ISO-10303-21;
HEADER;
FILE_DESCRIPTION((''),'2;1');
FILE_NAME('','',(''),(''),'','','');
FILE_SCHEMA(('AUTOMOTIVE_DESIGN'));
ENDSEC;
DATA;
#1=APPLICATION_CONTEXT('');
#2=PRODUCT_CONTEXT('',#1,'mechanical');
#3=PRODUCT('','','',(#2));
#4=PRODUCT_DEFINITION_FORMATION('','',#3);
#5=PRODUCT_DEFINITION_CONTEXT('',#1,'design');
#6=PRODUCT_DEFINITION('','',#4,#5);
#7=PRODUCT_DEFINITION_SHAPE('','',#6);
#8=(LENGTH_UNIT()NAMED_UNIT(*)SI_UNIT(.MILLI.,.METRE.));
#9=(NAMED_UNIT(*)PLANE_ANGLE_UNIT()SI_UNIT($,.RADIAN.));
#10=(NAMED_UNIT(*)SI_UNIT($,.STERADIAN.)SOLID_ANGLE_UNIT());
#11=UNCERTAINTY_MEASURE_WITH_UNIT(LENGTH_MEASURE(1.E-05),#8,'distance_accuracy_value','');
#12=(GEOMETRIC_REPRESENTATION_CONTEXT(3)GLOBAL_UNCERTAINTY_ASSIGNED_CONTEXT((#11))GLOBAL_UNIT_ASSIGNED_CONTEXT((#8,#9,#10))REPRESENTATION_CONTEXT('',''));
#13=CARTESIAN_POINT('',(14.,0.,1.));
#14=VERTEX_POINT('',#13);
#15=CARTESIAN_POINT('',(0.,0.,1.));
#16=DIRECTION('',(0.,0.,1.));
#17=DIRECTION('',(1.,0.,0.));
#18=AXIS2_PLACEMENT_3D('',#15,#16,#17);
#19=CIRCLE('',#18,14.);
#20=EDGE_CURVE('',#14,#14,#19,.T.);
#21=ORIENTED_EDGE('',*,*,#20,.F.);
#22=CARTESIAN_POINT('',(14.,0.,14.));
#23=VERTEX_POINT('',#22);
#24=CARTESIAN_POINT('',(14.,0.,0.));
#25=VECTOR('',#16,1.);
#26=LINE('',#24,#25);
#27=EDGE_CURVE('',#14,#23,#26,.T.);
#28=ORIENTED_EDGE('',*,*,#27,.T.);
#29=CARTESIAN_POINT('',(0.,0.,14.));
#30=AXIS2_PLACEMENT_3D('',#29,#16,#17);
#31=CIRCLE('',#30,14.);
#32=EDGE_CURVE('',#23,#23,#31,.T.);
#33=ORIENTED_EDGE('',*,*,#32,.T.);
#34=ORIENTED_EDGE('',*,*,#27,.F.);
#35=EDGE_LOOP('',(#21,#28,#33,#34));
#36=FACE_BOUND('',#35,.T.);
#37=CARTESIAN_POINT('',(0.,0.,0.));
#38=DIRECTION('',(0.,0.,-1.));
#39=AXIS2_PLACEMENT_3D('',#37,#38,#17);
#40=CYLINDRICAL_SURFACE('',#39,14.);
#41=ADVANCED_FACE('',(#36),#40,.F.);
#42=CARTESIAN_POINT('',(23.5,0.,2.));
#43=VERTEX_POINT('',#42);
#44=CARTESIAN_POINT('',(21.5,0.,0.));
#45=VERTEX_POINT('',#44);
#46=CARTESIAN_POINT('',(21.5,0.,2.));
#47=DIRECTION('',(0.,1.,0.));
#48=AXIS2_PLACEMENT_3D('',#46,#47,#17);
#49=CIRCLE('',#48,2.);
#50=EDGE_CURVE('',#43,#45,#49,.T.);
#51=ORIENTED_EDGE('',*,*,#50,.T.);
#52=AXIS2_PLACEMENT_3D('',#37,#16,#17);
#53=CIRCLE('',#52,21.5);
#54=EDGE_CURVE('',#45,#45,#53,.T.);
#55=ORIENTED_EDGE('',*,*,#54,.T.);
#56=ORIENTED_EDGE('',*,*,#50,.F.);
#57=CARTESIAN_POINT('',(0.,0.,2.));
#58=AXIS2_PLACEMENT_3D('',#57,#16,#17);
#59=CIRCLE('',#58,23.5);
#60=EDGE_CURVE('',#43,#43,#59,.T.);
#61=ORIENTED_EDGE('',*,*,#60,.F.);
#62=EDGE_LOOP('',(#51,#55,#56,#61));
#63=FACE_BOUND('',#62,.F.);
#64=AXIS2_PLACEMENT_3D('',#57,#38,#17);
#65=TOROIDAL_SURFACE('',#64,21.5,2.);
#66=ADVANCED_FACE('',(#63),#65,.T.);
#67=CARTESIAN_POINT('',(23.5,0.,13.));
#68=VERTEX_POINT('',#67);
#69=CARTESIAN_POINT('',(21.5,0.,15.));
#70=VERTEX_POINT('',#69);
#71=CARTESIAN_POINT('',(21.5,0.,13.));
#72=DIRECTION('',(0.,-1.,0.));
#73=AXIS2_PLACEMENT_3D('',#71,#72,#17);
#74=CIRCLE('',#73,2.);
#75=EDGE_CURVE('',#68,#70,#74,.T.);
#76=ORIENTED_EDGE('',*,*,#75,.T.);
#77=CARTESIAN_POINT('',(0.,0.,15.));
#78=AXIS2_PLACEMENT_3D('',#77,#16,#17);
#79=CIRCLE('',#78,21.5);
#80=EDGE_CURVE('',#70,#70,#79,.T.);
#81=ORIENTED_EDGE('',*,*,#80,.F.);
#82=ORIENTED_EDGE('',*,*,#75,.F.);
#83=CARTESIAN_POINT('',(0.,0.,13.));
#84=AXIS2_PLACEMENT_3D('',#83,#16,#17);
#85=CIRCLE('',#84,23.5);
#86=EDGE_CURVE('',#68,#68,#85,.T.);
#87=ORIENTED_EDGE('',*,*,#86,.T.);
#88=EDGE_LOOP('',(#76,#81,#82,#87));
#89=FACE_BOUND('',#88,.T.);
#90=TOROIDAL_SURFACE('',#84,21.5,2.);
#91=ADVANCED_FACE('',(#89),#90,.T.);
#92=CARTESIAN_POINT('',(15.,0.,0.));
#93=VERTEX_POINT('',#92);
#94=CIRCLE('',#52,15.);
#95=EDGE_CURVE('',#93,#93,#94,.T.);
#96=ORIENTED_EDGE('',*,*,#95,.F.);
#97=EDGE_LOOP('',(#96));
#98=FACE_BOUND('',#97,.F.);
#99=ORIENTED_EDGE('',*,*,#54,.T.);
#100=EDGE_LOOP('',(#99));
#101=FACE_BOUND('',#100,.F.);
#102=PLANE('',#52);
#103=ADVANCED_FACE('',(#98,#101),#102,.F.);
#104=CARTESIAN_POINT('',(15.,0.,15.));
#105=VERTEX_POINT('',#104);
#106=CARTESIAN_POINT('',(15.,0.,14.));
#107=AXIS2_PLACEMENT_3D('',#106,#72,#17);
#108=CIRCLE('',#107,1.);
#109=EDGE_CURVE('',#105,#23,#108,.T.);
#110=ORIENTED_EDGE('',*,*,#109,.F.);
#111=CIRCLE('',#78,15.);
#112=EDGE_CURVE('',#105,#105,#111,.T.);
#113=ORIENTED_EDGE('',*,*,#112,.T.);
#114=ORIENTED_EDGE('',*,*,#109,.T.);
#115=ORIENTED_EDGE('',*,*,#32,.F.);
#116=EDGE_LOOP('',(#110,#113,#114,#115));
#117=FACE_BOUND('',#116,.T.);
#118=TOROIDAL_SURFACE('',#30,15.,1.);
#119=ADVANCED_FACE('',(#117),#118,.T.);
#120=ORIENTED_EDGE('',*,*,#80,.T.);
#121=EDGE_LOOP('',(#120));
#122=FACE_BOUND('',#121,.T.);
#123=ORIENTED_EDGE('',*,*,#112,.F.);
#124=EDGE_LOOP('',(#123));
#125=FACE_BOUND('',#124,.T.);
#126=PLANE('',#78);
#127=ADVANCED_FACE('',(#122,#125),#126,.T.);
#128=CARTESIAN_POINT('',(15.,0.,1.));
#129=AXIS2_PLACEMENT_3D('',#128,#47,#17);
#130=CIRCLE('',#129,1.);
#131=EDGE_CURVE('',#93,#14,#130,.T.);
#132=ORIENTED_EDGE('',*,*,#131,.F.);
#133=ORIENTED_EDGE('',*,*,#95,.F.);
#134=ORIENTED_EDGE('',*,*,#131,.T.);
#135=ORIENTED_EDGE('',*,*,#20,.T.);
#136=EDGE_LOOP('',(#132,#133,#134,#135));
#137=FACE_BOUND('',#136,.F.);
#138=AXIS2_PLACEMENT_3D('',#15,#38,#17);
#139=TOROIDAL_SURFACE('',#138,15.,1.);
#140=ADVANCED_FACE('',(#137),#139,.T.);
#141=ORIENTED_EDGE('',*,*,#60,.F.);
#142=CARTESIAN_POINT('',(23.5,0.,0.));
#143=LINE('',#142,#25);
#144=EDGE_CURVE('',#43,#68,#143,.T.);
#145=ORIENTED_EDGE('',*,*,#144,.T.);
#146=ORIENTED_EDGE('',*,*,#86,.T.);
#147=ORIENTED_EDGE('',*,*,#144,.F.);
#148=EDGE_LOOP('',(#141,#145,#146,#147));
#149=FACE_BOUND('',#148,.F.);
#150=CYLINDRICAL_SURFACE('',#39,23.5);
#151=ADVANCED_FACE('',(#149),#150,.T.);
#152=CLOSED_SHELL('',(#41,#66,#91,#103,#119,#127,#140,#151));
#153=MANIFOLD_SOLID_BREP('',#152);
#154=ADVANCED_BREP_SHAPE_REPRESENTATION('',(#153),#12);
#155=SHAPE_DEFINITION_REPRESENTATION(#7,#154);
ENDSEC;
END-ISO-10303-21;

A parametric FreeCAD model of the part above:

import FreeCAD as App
import Part
import Sketcher


def edges_at(feature, points):
    """Names of the edges that pass closest to the given points."""
    edges = feature.Shape.Edges
    near = lambda p: min(range(len(edges)), key=lambda i: edges[i].distToShape(Part.Vertex(*p))[0])
    return sorted({f"Edge{near(p) + 1}" for p in points})

doc = App.newDocument("Part")
body = doc.addObject("PartDesign::Body", "Body")

sketch1 = body.newObject("Sketcher::SketchObject", "Sketch")
sketch1.AttachmentSupport = (doc.getObject("XY_Plane"), [""])
sketch1.MapMode = "FlatFace"
sketch1.addGeometry(Part.Circle(App.Vector(0, 0, 0), App.Vector(0, 0, 1), 23.5), False)
sketch1.addGeometry(Part.Circle(App.Vector(0, 0, 0), App.Vector(0, 0, 1), 14), False)
sketch1.addConstraint(Sketcher.Constraint("Coincident", 0, 3, -1, 1))
sketch1.addConstraint(Sketcher.Constraint("Coincident", 1, 3, -1, 1))
sketch1.addConstraint(Sketcher.Constraint("Diameter", 0, 47.0))
sketch1.addConstraint(Sketcher.Constraint("Diameter", 1, 28.0))
pad1 = body.newObject("PartDesign::Pad", "Pad")
pad1.Profile = sketch1
pad1.Length = 15
doc.recompute()

fillet = body.newObject("PartDesign::Fillet", "Fillet")
fillet.Base = (pad1, edges_at(pad1, [(-23.5, 0, 15), (-23.5, 0, 0)]))
fillet.Radius = 2
doc.recompute()

fillet2 = body.newObject("PartDesign::Fillet", "Fillet001")
fillet2.Base = (fillet, edges_at(fillet, [(-14, 0, 0), (-14, 0, 15)]))
fillet2.Radius = 1

doc.recompute()
